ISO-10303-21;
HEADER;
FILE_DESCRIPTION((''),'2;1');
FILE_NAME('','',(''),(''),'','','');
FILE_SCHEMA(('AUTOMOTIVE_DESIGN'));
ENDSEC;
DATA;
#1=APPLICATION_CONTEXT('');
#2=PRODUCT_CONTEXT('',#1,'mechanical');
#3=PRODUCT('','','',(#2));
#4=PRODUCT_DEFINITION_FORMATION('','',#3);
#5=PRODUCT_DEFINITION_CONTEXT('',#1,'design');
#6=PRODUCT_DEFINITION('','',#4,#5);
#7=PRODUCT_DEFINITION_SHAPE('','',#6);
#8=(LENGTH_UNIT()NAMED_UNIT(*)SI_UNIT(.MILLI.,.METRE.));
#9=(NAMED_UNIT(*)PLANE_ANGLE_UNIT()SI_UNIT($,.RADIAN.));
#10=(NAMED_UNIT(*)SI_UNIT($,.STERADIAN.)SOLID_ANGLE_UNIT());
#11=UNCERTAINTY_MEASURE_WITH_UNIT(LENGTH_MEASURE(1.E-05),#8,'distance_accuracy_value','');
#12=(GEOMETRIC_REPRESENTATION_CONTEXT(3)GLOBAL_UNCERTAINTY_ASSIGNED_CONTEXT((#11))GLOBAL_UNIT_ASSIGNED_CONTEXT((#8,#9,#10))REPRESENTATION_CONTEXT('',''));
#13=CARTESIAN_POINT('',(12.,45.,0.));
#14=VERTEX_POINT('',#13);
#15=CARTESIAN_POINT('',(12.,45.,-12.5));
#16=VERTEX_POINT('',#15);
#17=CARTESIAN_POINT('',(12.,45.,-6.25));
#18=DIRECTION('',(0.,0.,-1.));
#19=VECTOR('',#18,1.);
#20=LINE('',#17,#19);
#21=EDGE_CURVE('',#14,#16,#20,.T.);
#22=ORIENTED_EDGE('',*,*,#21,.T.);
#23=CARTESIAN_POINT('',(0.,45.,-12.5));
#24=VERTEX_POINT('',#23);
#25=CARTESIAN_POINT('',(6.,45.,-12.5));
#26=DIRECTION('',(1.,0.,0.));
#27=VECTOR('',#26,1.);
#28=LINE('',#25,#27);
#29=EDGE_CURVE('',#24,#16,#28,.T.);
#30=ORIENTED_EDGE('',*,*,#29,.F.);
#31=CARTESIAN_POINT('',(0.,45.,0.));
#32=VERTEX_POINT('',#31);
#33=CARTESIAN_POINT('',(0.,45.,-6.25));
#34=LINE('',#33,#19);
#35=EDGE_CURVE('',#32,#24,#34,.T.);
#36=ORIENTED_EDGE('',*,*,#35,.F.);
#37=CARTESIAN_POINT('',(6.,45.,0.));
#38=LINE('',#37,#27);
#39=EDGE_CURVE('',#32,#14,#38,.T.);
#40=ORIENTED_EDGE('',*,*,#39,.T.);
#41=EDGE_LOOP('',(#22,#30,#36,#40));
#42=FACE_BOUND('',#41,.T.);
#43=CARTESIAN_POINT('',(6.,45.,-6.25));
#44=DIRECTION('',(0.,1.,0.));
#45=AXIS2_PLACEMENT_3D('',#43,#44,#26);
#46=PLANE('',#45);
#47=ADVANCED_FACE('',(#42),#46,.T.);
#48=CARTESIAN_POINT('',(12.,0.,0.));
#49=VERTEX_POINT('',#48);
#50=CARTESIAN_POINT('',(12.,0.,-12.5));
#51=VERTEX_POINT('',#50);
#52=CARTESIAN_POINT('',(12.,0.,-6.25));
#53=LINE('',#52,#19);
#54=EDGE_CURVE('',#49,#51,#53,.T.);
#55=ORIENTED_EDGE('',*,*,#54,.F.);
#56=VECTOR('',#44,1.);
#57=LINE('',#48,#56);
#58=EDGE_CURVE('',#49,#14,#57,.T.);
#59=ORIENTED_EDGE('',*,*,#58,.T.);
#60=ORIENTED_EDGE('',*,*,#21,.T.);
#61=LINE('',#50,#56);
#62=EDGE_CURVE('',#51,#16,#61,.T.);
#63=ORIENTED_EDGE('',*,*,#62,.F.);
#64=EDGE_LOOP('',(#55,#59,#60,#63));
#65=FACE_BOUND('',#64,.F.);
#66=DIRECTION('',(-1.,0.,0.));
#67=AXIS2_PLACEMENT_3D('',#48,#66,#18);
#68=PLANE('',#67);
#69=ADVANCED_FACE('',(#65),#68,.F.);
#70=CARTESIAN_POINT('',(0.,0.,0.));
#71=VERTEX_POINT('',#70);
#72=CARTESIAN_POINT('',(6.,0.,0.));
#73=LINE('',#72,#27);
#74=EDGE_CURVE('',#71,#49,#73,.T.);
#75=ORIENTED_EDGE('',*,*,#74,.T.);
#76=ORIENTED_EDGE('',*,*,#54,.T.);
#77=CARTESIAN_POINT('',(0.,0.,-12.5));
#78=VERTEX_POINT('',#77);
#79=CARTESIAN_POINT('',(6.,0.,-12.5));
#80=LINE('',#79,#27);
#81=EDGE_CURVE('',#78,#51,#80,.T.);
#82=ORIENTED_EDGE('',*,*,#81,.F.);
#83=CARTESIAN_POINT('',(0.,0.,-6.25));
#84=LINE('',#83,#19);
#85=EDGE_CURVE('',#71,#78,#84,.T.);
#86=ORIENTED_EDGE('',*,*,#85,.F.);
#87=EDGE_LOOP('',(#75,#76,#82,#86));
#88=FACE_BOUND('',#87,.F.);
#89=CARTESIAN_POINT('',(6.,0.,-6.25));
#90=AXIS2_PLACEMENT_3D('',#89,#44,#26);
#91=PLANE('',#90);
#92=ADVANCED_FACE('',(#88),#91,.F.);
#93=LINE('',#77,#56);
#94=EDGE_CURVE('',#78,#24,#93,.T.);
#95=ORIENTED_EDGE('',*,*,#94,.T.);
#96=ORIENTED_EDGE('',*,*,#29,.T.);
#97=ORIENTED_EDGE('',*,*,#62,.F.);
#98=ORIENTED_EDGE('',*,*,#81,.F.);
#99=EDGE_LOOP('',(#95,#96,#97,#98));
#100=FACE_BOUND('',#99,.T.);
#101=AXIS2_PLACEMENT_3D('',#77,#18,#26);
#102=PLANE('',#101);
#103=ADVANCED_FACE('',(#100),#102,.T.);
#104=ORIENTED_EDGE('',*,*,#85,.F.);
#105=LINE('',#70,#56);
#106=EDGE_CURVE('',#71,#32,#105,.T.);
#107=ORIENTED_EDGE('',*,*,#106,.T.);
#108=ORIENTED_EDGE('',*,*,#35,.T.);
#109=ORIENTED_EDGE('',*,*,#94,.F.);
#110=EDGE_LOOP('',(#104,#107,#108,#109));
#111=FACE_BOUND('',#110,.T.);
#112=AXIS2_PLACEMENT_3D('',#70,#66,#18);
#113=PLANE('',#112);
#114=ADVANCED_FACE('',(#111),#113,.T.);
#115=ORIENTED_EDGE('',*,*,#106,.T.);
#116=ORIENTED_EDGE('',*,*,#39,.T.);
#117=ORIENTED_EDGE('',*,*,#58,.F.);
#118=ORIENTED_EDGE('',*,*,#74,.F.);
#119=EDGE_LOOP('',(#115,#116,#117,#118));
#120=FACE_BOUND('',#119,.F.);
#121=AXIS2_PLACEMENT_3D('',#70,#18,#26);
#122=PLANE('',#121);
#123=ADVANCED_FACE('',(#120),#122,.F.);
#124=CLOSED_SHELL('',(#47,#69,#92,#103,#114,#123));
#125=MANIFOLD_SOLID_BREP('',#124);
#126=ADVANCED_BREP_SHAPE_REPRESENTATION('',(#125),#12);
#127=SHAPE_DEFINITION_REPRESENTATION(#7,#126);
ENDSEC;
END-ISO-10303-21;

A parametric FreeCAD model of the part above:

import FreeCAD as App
import Part
import Sketcher
Q = App.Units.Quantity


def add_polygon(sketch, points):
    """Adds a closed chain of lines whose ends are joined by coincident constraints."""
    first, n = sketch.GeometryCount, len(points)
    for a, b in zip(points, points[1:] + points[:1]):
        sketch.addGeometry(Part.LineSegment(App.Vector(*a, 0), App.Vector(*b, 0)), False)
    for i in range(n):
        sketch.addConstraint(Sketcher.Constraint("Coincident", first + i, 2, first + (i + 1) % n, 1))

doc = App.newDocument("Part")
body = doc.addObject("PartDesign::Body", "Body")

sketch1 = doc.addObject("Sketcher::SketchObject", "Sketch")
body.addObject(sketch1)
sketch1.AttachmentSupport = (doc.XZ_Plane, [""])
sketch1.MapMode = "FlatFace"
add_polygon(sketch1, [(0, -12), (0, 0), (12, 0), (12, -12)])
sketch1.addConstraint([
    Sketcher.Constraint("Vertical", 0),
    Sketcher.Constraint("Horizontal", 1),
    Sketcher.Constraint("Vertical", 2),
    Sketcher.Constraint("Horizontal", 3),
    Sketcher.Constraint("Coincident", 0, 2, -1, 1),
    Sketcher.Constraint("DistanceX", 1, 1, 1, 2, Q("12 mm")),
    Sketcher.Constraint("DistanceY", 0, 1, 0, 2, Q("12.5 mm")),
])
pad1 = doc.addObject("PartDesign::Pad", "Pad")
body.addObject(pad1)
pad1.Profile = sketch1
pad1.Length = 45
pad1.Reversed = True

doc.recompute()
